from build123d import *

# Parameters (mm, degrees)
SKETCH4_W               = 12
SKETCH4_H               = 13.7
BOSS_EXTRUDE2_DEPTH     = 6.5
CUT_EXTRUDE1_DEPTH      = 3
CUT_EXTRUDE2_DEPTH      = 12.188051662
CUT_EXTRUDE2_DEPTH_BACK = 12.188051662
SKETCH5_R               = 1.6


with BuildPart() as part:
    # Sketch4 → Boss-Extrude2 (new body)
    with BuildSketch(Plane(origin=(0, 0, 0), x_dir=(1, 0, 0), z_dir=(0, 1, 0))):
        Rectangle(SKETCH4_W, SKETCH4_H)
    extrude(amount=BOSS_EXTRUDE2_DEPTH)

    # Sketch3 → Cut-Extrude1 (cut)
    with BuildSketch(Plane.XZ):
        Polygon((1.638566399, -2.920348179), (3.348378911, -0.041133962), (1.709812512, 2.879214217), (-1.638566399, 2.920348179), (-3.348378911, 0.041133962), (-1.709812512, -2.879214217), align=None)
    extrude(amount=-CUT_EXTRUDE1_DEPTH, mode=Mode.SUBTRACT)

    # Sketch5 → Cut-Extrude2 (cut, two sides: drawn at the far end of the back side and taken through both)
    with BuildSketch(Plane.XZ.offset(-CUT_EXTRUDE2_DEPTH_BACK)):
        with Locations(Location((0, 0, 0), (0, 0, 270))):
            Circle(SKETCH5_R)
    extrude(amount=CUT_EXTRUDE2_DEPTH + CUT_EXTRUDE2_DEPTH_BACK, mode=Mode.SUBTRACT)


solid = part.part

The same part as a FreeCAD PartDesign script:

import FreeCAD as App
import Part
import Sketcher

V = App.Vector
Q = App.Units.Quantity


def add_polygon(sketch, points):
    """Adds a closed chain of lines whose ends are joined by coincident constraints."""
    first, n = sketch.GeometryCount, len(points)
    for a, b in zip(points, points[1:] + points[:1]):
        sketch.addGeometry(Part.LineSegment(App.Vector(*a, 0), App.Vector(*b, 0)), False)
    for i in range(n):
        sketch.addConstraint(Sketcher.Constraint("Coincident", first + i, 2, first + (i + 1) % n, 1))

doc = App.newDocument("Part")
body = doc.addObject("PartDesign::Body", "Body")

# Sketch on XZ plane
sketch1 = body.newObject("Sketcher::SketchObject", "Sketch")
sketch1.AttachmentSupport = (doc.getObject("XZ_Plane"), [""])
sketch1.MapMode = "FlatFace"
add_polygon(sketch1, [(-6, -7), (-6, 7), (6, 7), (6, -7)])  # lines 0-3
sketch1.addConstraint(Sketcher.Constraint("Vertical", 0))
sketch1.addConstraint(Sketcher.Constraint("Horizontal", 1))
sketch1.addConstraint(Sketcher.Constraint("Vertical", 2))
sketch1.addConstraint(Sketcher.Constraint("Horizontal", 3))
sketch1.addConstraint(Sketcher.Constraint("Symmetric", 0, 2, 2, 2, -1, 1))
sketch1.addConstraint(Sketcher.Constraint("DistanceX", 1, 1, 1, 2, Q("12 mm")))
sketch1.addConstraint(Sketcher.Constraint("DistanceY", 0, 1, 0, 2, Q("13.7 mm")))
pad1 = body.newObject("PartDesign::Pad", "Pad")
pad1.Profile = sketch1
pad1.Length = 6.5
pad1.Reversed = True

# Sketch on XZ plane
sketch2 = body.newObject("Sketcher::SketchObject", "Sketch001")
sketch2.AttachmentSupport = (doc.getObject("XZ_Plane"), [""])
sketch2.MapMode = "FlatFace"
add_polygon(sketch2, [(1.6, -2.9), (3.3, 0), (1.7, 2.9), (-1.6, 2.9), (-3.3, 0), (-1.7, -2.9)])  # lines 0-5
sketch2.addConstraint(Sketcher.Constraint("Symmetric", 0, 2, 3, 2, -1, 1))
sketch2.addConstraint(Sketcher.Constraint("Symmetric", 1, 2, 4, 2, -1, 1))
sketch2.addConstraint(Sketcher.Constraint("Symmetric", 2, 2, 5, 2, -1, 1))
sketch2.addConstraint(Sketcher.Constraint("Equal", 0, 1))
sketch2.addConstraint(Sketcher.Constraint("Equal", 1, 2))
sketch2.addConstraint(Sketcher.Constraint("Distance", 0, Q("3.348632 mm")))
sketch2.addConstraint(Sketcher.Constraint("DistanceX", -1, 1, 0, 2, Q("3.348379 mm")))
sketch2.addConstraint(Sketcher.Constraint("DistanceY", -1, 1, 2, 2, Q("2.920348 mm")))
sketch2.addConstraint(Sketcher.Constraint("DistanceY", 0, 2, 1, 2, Q("2.920348 mm")))
pocket1 = body.newObject("PartDesign::Pocket", "Pocket")
pocket1.Profile = sketch2
pocket1.Length = 3

# Sketch on XZ plane
sketch3 = body.newObject("Sketcher::SketchObject", "Sketch002")
sketch3.AttachmentSupport = (doc.getObject("XZ_Plane"), [""])
sketch3.MapMode = "FlatFace"
sketch3.addGeometry(Part.Circle(V(0, 0, 0), V(0, 0, 1), 1.6), False)
sketch3.addConstraint(Sketcher.Constraint("Coincident", 0, 3, -1, 1))
sketch3.addConstraint(Sketcher.Constraint("Diameter", 0, Q("3.2 mm")))
pocket2 = body.newObject("PartDesign::Pocket", "Pocket001")
pocket2.Profile = sketch3
pocket2.Type = "ThroughAll"
pocket2.Midplane = True

doc.recompute()
